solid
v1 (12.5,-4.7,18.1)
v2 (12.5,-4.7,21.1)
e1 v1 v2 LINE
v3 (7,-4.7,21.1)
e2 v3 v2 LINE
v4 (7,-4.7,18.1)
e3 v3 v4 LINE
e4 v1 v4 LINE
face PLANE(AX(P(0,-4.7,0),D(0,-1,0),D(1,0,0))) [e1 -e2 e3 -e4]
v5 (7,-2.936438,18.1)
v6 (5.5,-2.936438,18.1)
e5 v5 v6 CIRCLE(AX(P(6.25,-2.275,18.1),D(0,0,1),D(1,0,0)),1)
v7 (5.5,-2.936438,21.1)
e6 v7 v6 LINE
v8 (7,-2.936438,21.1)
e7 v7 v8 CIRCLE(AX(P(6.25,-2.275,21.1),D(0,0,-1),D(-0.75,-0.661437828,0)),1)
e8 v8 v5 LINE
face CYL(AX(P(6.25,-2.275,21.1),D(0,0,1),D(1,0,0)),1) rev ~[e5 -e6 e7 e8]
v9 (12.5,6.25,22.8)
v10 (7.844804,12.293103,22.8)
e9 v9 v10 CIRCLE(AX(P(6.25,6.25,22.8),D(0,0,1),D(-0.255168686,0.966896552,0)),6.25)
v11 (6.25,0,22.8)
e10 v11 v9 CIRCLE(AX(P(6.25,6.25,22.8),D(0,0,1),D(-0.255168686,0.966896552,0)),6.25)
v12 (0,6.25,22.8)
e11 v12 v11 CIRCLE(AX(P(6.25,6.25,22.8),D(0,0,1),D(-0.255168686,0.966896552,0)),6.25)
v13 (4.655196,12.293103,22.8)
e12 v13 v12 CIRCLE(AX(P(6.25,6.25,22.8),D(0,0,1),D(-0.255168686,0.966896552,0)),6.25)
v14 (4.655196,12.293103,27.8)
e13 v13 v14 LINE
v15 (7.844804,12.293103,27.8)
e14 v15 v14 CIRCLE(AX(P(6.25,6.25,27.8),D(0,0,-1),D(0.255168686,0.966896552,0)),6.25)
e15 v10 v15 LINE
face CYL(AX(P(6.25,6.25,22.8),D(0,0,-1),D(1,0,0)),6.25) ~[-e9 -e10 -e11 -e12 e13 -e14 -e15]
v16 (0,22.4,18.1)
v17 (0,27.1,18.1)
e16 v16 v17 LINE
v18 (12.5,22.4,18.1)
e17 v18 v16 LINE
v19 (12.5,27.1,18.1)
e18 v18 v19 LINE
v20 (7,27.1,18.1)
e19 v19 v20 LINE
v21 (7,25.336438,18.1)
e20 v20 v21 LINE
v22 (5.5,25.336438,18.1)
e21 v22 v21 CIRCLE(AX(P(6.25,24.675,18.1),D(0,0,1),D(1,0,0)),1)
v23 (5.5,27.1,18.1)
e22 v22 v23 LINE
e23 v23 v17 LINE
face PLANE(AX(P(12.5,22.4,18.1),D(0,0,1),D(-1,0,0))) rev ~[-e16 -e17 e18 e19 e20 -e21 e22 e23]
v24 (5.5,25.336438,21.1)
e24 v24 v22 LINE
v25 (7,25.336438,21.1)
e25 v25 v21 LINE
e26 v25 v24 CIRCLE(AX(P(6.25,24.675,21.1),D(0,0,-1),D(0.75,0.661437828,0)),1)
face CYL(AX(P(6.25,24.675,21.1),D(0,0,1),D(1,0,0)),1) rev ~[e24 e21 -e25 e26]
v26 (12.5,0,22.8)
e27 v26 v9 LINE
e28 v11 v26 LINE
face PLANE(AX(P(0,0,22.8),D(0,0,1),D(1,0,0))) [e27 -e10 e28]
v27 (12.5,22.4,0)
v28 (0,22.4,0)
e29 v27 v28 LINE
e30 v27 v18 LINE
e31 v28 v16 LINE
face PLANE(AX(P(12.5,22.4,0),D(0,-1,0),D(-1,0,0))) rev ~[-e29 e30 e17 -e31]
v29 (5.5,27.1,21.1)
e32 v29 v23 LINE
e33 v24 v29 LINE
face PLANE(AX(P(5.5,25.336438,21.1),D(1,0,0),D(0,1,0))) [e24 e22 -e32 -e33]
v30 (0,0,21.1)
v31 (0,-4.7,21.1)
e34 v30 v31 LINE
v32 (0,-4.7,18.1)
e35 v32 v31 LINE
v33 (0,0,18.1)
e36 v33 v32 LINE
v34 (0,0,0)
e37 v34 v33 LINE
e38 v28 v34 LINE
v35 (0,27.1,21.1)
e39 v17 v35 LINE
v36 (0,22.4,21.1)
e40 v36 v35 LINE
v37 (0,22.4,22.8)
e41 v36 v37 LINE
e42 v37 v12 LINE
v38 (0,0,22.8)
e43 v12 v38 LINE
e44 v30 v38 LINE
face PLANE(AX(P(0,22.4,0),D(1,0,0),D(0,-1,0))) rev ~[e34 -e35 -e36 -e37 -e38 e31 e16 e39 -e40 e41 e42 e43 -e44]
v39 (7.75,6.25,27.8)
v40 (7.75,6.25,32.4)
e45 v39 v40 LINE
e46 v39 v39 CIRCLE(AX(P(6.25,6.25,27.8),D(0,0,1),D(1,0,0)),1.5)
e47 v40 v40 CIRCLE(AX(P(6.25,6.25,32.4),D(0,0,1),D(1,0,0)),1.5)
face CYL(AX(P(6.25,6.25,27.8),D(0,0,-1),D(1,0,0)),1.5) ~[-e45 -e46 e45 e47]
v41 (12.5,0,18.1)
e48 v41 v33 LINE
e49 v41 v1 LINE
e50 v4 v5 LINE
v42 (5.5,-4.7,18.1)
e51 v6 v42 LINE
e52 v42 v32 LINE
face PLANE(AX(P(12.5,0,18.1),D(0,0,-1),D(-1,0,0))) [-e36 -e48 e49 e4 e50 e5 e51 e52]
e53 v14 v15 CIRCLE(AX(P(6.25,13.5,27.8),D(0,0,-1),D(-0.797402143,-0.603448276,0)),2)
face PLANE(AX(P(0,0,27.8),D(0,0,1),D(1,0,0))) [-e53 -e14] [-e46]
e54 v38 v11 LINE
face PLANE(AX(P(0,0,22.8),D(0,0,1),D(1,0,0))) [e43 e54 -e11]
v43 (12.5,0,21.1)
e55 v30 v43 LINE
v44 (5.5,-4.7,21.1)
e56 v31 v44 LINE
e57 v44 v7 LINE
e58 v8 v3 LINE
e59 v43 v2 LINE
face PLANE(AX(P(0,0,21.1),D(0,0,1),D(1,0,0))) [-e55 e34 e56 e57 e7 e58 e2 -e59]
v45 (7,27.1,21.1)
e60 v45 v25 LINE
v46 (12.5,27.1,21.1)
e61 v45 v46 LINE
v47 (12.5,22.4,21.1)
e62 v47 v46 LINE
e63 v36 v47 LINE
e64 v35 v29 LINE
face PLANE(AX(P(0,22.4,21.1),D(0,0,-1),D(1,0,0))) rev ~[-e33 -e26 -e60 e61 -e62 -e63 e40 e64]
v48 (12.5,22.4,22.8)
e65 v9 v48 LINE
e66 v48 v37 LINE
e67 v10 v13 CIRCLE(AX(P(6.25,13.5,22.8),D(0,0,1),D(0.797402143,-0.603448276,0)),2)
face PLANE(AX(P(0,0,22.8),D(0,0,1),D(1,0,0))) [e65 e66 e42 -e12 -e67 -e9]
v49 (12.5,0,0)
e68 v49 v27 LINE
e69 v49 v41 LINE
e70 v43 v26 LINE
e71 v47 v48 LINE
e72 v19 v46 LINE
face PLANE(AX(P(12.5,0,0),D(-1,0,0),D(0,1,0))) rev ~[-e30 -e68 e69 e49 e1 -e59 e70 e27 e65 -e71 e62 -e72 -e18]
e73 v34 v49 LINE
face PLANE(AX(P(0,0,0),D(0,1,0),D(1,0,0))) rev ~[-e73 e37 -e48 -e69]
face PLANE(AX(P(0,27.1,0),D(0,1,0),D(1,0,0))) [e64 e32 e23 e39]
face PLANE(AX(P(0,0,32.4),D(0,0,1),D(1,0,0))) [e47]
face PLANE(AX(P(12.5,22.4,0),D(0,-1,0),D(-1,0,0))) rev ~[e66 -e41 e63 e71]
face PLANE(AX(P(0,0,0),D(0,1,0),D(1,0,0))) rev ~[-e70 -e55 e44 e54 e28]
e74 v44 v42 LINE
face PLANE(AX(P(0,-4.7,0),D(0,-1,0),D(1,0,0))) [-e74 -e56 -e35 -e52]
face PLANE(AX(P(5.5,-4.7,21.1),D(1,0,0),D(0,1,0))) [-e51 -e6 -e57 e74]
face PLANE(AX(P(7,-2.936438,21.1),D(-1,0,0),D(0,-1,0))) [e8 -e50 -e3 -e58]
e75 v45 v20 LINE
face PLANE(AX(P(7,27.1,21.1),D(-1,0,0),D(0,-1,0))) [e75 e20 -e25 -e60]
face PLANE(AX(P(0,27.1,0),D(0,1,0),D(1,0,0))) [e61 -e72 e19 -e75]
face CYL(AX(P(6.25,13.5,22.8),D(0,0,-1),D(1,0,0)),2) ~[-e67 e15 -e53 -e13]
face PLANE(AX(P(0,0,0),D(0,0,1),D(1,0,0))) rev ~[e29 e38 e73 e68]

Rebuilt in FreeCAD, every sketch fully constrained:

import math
import FreeCAD as App
import Part
import Sketcher

V = App.Vector


def add_polygon(sketch, points):
    """Adds a closed chain of lines whose ends are joined by coincident constraints."""
    first, n = sketch.GeometryCount, len(points)
    for a, b in zip(points, points[1:] + points[:1]):
        sketch.addGeometry(Part.LineSegment(App.Vector(*a, 0), App.Vector(*b, 0)), False)
    for i in range(n):
        sketch.addConstraint(Sketcher.Constraint("Coincident", first + i, 2, first + (i + 1) % n, 1))

doc = App.newDocument("Part")
params = doc.addObject("Spreadsheet::Sheet", "Params")
for row, (alias, value) in enumerate([
    ("sketch1_width", "12.5 mm"),
    ("sketch1_height", "22.4 mm"),
    ("pad1_length", "22.8 mm"),
    ("sketch2_height", "3 mm"),
    ("sketch2_width", "12.5 mm"),
    ("pad2_length", "4.7 mm"),
    ("sketch3_height", "3 mm"),
    ("sketch3_width", "12.5 mm"),
    ("pad3_length", "4.7 mm"),
    ("sketch4_radius", "1 mm"),
    ("sketch5_radius", "2 mm"),
    ("sketch5_radius2", "6.25 mm"),
    ("pad4_length", "5 mm"),
    ("sketch6_diameter", "3 mm"),
    ("pad5_length", "4.6 mm"),
], start=1):
    params.set(f"A{row}", alias)
    params.set(f"B{row}", "=" + value)
    params.setAlias(f"B{row}", alias)

body = doc.addObject("PartDesign::Body", "Body")

# Sketch on XY plane
sketch1 = body.newObject("Sketcher::SketchObject", "Sketch")
sketch1.AttachmentSupport = (doc.getObject("XY_Plane"), [""])
sketch1.MapMode = "FlatFace"
add_polygon(sketch1, [(0, 22), (0, 0), (12, 0), (12, 22)])  # lines 0-3
sketch1.addConstraint(Sketcher.Constraint("Vertical", 0))
sketch1.addConstraint(Sketcher.Constraint("Horizontal", 1))
sketch1.addConstraint(Sketcher.Constraint("Vertical", 2))
sketch1.addConstraint(Sketcher.Constraint("Horizontal", 3))
sketch1.addConstraint(Sketcher.Constraint("Coincident", 0, 2, -1, 1))
sketch1.addConstraint(Sketcher.Constraint("DistanceX", 1, 1, 1, 2, 12.5))
sketch1.addConstraint(Sketcher.Constraint("DistanceY", 0, 2, 0, 1, 22.4))
sketch1.setExpression("Constraints[9]", "Params.sketch1_width")
sketch1.setExpression("Constraints[10]", "Params.sketch1_height")
pad1 = body.newObject("PartDesign::Pad", "Pad")
pad1.Profile = sketch1
pad1.setExpression("Length", "Params.pad1_length")

# Sketch on XZ plane
sketch2 = body.newObject("Sketcher::SketchObject", "Sketch001")
sketch2.AttachmentSupport = (doc.getObject("XZ_Plane"), [""])
sketch2.MapMode = "FlatFace"
sketch2.AttachmentOffset = App.Placement(V(0, 0, -22.4), App.Rotation())
add_polygon(sketch2, [(12.5, 21.1), (12.5, 18.1), (0, 18.1), (0, 21.1)])  # lines 0-3
sketch2.addConstraint(Sketcher.Constraint("Vertical", 0))
sketch2.addConstraint(Sketcher.Constraint("Horizontal", 1))
sketch2.addConstraint(Sketcher.Constraint("Vertical", 2))
sketch2.addConstraint(Sketcher.Constraint("Horizontal", 3))
sketch2.addConstraint(Sketcher.Constraint("PointOnObject", 1, 2, -2))
sketch2.addConstraint(Sketcher.Constraint("DistanceY", 0, 2, 0, 1, 3.0))
sketch2.addConstraint(Sketcher.Constraint("DistanceY", -1, 1, 0, 2, 18.1))
sketch2.addConstraint(Sketcher.Constraint("DistanceX", 1, 2, 1, 1, 12.5))
sketch2.setExpression("Constraints[9]", "Params.sketch2_height")
sketch2.setExpression("Constraints[11]", "Params.sketch2_width")
pad2 = body.newObject("PartDesign::Pad", "Pad001")
pad2.Profile = sketch2
pad2.setExpression("Length", "Params.pad2_length")
pad2.Reversed = True

# Sketch on XZ plane
sketch3 = body.newObject("Sketcher::SketchObject", "Sketch002")
sketch3.AttachmentSupport = (doc.getObject("XZ_Plane"), [""])
sketch3.MapMode = "FlatFace"
add_polygon(sketch3, [(0, 18.1), (12.5, 18.1), (12.5, 21.1), (0, 21.1)])  # lines 0-3
sketch3.addConstraint(Sketcher.Constraint("Horizontal", 0))
sketch3.addConstraint(Sketcher.Constraint("Vertical", 1))
sketch3.addConstraint(Sketcher.Constraint("Horizontal", 2))
sketch3.addConstraint(Sketcher.Constraint("Vertical", 3))
sketch3.addConstraint(Sketcher.Constraint("PointOnObject", 2, 2, -2))
sketch3.addConstraint(Sketcher.Constraint("DistanceY", 1, 1, 1, 2, 3.0))
sketch3.addConstraint(Sketcher.Constraint("DistanceX", 0, 1, 0, 2, 12.5))
sketch3.addConstraint(Sketcher.Constraint("DistanceY", -1, 1, 0, 2, 18.1))
sketch3.setExpression("Constraints[9]", "Params.sketch3_height")
sketch3.setExpression("Constraints[10]", "Params.sketch3_width")
pad3 = body.newObject("PartDesign::Pad", "Pad002")
pad3.Profile = sketch3
pad3.setExpression("Length", "Params.pad3_length")

# Sketch on XY plane
sketch4 = body.newObject("Sketcher::SketchObject", "Sketch003")
sketch4.AttachmentSupport = (doc.getObject("XY_Plane"), [""])
sketch4.MapMode = "FlatFace"
sketch4.AttachmentOffset = App.Placement(V(0, 0, 21.1), App.Rotation())
sketch4.addGeometry(Part.LineSegment(V(5.5, -2.9, 0), V(5.5, -4.7, 0)), False)
sketch4.addGeometry(Part.LineSegment(V(5.5, -4.7, 0), V(7, -4.7, 0)), False)
sketch4.addGeometry(Part.LineSegment(V(7, -4.7, 0), V(7, -2.9, 0)), False)
sketch4.addGeometry(Part.ArcOfCircle(Part.Circle(V(6.2, -2.3, 0), V(0, 0, 1), 1), math.radians(-41), math.radians(221)), False)
sketch4.addGeometry(Part.LineSegment(V(7, 25.3, 0), V(7, 27.1, 0)), False)
sketch4.addGeometry(Part.LineSegment(V(7, 27.1, 0), V(5.5, 27.1, 0)), False)
sketch4.addGeometry(Part.LineSegment(V(5.5, 27.1, 0), V(5.5, 25.3, 0)), False)
sketch4.addGeometry(Part.ArcOfCircle(Part.Circle(V(6.2, 24.7, 0), V(0, 0, 1), 1), math.radians(139), math.radians(401)), False)
sketch4.addConstraint(Sketcher.Constraint("Coincident", 0, 2, 1, 1))
sketch4.addConstraint(Sketcher.Constraint("Coincident", 1, 2, 2, 1))
sketch4.addConstraint(Sketcher.Constraint("Coincident", 2, 2, 3, 1))
sketch4.addConstraint(Sketcher.Constraint("Coincident", 3, 2, 0, 1))
sketch4.addConstraint(Sketcher.Constraint("Coincident", 4, 2, 5, 1))
sketch4.addConstraint(Sketcher.Constraint("Coincident", 5, 2, 6, 1))
sketch4.addConstraint(Sketcher.Constraint("Coincident", 6, 2, 7, 1))
sketch4.addConstraint(Sketcher.Constraint("Coincident", 7, 2, 4, 1))
sketch4.addConstraint(Sketcher.Constraint("Vertical", 0))
sketch4.addConstraint(Sketcher.Constraint("Horizontal", 1))
sketch4.addConstraint(Sketcher.Constraint("Vertical", 2))
sketch4.addConstraint(Sketcher.Constraint("Vertical", 4))
sketch4.addConstraint(Sketcher.Constraint("Horizontal", 5))
sketch4.addConstraint(Sketcher.Constraint("Vertical", 6))
sketch4.addConstraint(Sketcher.Constraint("Equal", 3, 7))
sketch4.addConstraint(Sketcher.Constraint("Horizontal", 2, 2, 3, 2))
sketch4.addConstraint(Sketcher.Constraint("Horizontal", 6, 2, 7, 2))
sketch4.addConstraint(Sketcher.Constraint("Vertical", 3, 3, 7, 3))
sketch4.addConstraint(Sketcher.Constraint("Vertical", 2, 2, 4, 2))
sketch4.addConstraint(Sketcher.Constraint("Equal", 2, 4))
sketch4.addConstraint(Sketcher.Constraint("Radius", 3, 1.0))
sketch4.addConstraint(Sketcher.Constraint("DistanceX", 0, 2, 3, 3, 0.75))
sketch4.addConstraint(Sketcher.Constraint("DistanceX", -1, 1, 1, 2, 7.0))
sketch4.addConstraint(Sketcher.Constraint("DistanceY", 0, 2, 3, 3, 2.425))
sketch4.addConstraint(Sketcher.Constraint("DistanceY", 0, 2, -1, 1, 4.7))
sketch4.addConstraint(Sketcher.Constraint("DistanceY", -1, 1, 4, 2, 27.1))
sketch4.setExpression("Constraints[20]", "Params.sketch4_radius")
pocket1 = body.newObject("PartDesign::Pocket", "Pocket")
pocket1.Profile = sketch4
pocket1.Type = "ThroughAll"

# Sketch on XY plane
sketch5 = body.newObject("Sketcher::SketchObject", "Sketch004")
sketch5.AttachmentSupport = (doc.getObject("XY_Plane"), [""])
sketch5.MapMode = "FlatFace"
sketch5.AttachmentOffset = App.Placement(V(0, 0, 22.8), App.Rotation())
sketch5.addGeometry(Part.ArcOfCircle(Part.Circle(V(6.2, 6.2, 0), V(0, 0, 1), 6.2), math.radians(105), math.radians(435)), False)
sketch5.addGeometry(Part.ArcOfCircle(Part.Circle(V(6.2, 13.5, 0), V(0, 0, 1), 2), math.radians(-37), math.radians(217)), False)
sketch5.addConstraint(Sketcher.Constraint("Coincident", 0, 1, 1, 2))
sketch5.addConstraint(Sketcher.Constraint("Coincident", 1, 1, 0, 2))
sketch5.addConstraint(Sketcher.Constraint("Horizontal", 0, 1, 1, 1))
sketch5.addConstraint(Sketcher.Constraint("Radius", 1, 2.0))
sketch5.addConstraint(Sketcher.Constraint("Radius", 0, 6.25))
sketch5.addConstraint(Sketcher.Constraint("DistanceX", -1, 1, 0, 3, 6.25))
sketch5.addConstraint(Sketcher.Constraint("DistanceY", -1, 1, 0, 3, 6.25))
sketch5.addConstraint(Sketcher.Constraint("DistanceY", 0, 3, 1, 3, 7.25))
sketch5.setExpression("Constraints[3]", "Params.sketch5_radius")
sketch5.setExpression("Constraints[4]", "Params.sketch5_radius2")
pad4 = body.newObject("PartDesign::Pad", "Pad003")
pad4.Profile = sketch5
pad4.setExpression("Length", "Params.pad4_length")

# Sketch on XY plane
sketch6 = body.newObject("Sketcher::SketchObject", "Sketch005")
sketch6.AttachmentSupport = (doc.getObject("XY_Plane"), [""])
sketch6.MapMode = "FlatFace"
sketch6.AttachmentOffset = App.Placement(V(0, 0, 27.8), App.Rotation())
sketch6.addGeometry(Part.Circle(V(6.2, 6.2, 0), V(0, 0, 1), 1.5), False)
sketch6.addConstraint(Sketcher.Constraint("Diameter", 0, 3.0))
sketch6.addConstraint(Sketcher.Constraint("DistanceX", -1, 1, 0, 3, 6.25))
sketch6.addConstraint(Sketcher.Constraint("DistanceY", -1, 1, 0, 3, 6.25))
sketch6.setExpression("Constraints[0]", "Params.sketch6_diameter")
pad5 = body.newObject("PartDesign::Pad", "Pad004")
pad5.Profile = sketch6
pad5.setExpression("Length", "Params.pad5_length")

doc.recompute()
